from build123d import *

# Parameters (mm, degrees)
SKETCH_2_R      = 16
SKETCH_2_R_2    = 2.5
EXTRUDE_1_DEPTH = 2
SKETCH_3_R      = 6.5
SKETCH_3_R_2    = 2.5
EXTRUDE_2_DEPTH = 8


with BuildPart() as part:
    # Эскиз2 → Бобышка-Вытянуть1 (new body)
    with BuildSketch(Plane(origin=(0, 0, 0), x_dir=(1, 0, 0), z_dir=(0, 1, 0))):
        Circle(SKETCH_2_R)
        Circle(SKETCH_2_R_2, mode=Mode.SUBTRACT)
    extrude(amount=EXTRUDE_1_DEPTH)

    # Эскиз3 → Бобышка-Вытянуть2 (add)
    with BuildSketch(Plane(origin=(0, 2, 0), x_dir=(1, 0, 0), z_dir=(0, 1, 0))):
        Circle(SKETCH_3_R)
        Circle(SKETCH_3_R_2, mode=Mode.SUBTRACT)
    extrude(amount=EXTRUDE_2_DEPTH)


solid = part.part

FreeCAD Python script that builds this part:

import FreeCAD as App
import Part
import Sketcher
Q = App.Units.Quantity

doc = App.newDocument("Part")
body = doc.addObject("PartDesign::Body", "Body")

# Sketch on XZ plane
sketch1 = doc.addObject("Sketcher::SketchObject", "Sketch")
body.addObject(sketch1)
sketch1.AttachmentSupport = (doc.XZ_Plane, [""])
sketch1.MapMode = "FlatFace"
sketch1.addGeometry(Part.Circle(App.Vector(0, 0, 0), App.Vector(0, 0, 1), 16), False)
sketch1.addGeometry(Part.Circle(App.Vector(0, 0, 0), App.Vector(0, 0, 1), 2.5), False)
sketch1.addConstraint(Sketcher.Constraint("Coincident", 0, 3, -1, 1))
sketch1.addConstraint(Sketcher.Constraint("Coincident", 1, 3, -1, 1))
sketch1.addConstraint(Sketcher.Constraint("Diameter", 0, Q("32 mm")))
sketch1.addConstraint(Sketcher.Constraint("Diameter", 1, Q("5 mm")))
pad1 = doc.addObject("PartDesign::Pad", "Pad")
body.addObject(pad1)
pad1.Profile = sketch1
pad1.Length = 2
pad1.Reversed = True

# Sketch on XZ plane
sketch2 = doc.addObject("Sketcher::SketchObject", "Sketch001")
body.addObject(sketch2)
sketch2.AttachmentSupport = (doc.XZ_Plane, [""])
sketch2.MapMode = "FlatFace"
sketch2.AttachmentOffset = App.Placement(App.Vector(0, 0, -2), App.Rotation())
sketch2.addGeometry(Part.Circle(App.Vector(0, 0, 0), App.Vector(0, 0, 1), 6.5), False)
sketch2.addGeometry(Part.Circle(App.Vector(0, 0, 0), App.Vector(0, 0, 1), 2.5), False)
sketch2.addConstraint(Sketcher.Constraint("Coincident", 0, 3, -1, 1))
sketch2.addConstraint(Sketcher.Constraint("Coincident", 1, 3, -1, 1))
sketch2.addConstraint(Sketcher.Constraint("Diameter", 0, Q("13 mm")))
sketch2.addConstraint(Sketcher.Constraint("Diameter", 1, Q("5 mm")))
pad2 = doc.addObject("PartDesign::Pad", "Pad001")
body.addObject(pad2)
pad2.Profile = sketch2
pad2.Length = 8
pad2.Reversed = True

doc.recompute()
